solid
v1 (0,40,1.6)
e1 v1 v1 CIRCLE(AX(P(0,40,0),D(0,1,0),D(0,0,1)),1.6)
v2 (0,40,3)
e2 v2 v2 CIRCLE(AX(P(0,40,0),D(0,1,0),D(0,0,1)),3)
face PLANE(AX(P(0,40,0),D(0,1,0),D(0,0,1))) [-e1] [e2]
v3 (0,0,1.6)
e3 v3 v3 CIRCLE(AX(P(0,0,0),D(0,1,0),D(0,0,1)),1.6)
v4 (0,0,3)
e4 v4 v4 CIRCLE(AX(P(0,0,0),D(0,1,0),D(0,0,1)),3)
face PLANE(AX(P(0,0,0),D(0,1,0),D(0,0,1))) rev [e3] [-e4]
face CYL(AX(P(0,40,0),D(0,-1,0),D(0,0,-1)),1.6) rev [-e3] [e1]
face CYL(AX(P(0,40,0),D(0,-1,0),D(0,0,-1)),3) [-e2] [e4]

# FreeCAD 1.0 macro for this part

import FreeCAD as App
import Part
import Sketcher

doc = App.newDocument("Part")
body = doc.addObject("PartDesign::Body", "Body")

sketch1 = body.newObject("Sketcher::SketchObject", "Sketch")
sketch1.AttachmentSupport = (doc.getObject("XZ_Plane"), [""])
sketch1.MapMode = "FlatFace"
sketch1.addGeometry([
    Part.Circle(App.Vector(0, 0, 0), App.Vector(0, 0, 1), 3),
    Part.Circle(App.Vector(0, 0, 0), App.Vector(0, 0, 1), 1.6),
], False)
sketch1.addConstraint([
    Sketcher.Constraint("Coincident", 0, 3, -1, 1),
    Sketcher.Constraint("Coincident", 1, 3, -1, 1),
    Sketcher.Constraint("Diameter", 0, 6.0),
    Sketcher.Constraint("Diameter", 1, 3.2),
])
pad1 = body.newObject("PartDesign::Pad", "Pad")
pad1.Profile = sketch1
pad1.Length = 40
pad1.Reversed = True

doc.recompute()
